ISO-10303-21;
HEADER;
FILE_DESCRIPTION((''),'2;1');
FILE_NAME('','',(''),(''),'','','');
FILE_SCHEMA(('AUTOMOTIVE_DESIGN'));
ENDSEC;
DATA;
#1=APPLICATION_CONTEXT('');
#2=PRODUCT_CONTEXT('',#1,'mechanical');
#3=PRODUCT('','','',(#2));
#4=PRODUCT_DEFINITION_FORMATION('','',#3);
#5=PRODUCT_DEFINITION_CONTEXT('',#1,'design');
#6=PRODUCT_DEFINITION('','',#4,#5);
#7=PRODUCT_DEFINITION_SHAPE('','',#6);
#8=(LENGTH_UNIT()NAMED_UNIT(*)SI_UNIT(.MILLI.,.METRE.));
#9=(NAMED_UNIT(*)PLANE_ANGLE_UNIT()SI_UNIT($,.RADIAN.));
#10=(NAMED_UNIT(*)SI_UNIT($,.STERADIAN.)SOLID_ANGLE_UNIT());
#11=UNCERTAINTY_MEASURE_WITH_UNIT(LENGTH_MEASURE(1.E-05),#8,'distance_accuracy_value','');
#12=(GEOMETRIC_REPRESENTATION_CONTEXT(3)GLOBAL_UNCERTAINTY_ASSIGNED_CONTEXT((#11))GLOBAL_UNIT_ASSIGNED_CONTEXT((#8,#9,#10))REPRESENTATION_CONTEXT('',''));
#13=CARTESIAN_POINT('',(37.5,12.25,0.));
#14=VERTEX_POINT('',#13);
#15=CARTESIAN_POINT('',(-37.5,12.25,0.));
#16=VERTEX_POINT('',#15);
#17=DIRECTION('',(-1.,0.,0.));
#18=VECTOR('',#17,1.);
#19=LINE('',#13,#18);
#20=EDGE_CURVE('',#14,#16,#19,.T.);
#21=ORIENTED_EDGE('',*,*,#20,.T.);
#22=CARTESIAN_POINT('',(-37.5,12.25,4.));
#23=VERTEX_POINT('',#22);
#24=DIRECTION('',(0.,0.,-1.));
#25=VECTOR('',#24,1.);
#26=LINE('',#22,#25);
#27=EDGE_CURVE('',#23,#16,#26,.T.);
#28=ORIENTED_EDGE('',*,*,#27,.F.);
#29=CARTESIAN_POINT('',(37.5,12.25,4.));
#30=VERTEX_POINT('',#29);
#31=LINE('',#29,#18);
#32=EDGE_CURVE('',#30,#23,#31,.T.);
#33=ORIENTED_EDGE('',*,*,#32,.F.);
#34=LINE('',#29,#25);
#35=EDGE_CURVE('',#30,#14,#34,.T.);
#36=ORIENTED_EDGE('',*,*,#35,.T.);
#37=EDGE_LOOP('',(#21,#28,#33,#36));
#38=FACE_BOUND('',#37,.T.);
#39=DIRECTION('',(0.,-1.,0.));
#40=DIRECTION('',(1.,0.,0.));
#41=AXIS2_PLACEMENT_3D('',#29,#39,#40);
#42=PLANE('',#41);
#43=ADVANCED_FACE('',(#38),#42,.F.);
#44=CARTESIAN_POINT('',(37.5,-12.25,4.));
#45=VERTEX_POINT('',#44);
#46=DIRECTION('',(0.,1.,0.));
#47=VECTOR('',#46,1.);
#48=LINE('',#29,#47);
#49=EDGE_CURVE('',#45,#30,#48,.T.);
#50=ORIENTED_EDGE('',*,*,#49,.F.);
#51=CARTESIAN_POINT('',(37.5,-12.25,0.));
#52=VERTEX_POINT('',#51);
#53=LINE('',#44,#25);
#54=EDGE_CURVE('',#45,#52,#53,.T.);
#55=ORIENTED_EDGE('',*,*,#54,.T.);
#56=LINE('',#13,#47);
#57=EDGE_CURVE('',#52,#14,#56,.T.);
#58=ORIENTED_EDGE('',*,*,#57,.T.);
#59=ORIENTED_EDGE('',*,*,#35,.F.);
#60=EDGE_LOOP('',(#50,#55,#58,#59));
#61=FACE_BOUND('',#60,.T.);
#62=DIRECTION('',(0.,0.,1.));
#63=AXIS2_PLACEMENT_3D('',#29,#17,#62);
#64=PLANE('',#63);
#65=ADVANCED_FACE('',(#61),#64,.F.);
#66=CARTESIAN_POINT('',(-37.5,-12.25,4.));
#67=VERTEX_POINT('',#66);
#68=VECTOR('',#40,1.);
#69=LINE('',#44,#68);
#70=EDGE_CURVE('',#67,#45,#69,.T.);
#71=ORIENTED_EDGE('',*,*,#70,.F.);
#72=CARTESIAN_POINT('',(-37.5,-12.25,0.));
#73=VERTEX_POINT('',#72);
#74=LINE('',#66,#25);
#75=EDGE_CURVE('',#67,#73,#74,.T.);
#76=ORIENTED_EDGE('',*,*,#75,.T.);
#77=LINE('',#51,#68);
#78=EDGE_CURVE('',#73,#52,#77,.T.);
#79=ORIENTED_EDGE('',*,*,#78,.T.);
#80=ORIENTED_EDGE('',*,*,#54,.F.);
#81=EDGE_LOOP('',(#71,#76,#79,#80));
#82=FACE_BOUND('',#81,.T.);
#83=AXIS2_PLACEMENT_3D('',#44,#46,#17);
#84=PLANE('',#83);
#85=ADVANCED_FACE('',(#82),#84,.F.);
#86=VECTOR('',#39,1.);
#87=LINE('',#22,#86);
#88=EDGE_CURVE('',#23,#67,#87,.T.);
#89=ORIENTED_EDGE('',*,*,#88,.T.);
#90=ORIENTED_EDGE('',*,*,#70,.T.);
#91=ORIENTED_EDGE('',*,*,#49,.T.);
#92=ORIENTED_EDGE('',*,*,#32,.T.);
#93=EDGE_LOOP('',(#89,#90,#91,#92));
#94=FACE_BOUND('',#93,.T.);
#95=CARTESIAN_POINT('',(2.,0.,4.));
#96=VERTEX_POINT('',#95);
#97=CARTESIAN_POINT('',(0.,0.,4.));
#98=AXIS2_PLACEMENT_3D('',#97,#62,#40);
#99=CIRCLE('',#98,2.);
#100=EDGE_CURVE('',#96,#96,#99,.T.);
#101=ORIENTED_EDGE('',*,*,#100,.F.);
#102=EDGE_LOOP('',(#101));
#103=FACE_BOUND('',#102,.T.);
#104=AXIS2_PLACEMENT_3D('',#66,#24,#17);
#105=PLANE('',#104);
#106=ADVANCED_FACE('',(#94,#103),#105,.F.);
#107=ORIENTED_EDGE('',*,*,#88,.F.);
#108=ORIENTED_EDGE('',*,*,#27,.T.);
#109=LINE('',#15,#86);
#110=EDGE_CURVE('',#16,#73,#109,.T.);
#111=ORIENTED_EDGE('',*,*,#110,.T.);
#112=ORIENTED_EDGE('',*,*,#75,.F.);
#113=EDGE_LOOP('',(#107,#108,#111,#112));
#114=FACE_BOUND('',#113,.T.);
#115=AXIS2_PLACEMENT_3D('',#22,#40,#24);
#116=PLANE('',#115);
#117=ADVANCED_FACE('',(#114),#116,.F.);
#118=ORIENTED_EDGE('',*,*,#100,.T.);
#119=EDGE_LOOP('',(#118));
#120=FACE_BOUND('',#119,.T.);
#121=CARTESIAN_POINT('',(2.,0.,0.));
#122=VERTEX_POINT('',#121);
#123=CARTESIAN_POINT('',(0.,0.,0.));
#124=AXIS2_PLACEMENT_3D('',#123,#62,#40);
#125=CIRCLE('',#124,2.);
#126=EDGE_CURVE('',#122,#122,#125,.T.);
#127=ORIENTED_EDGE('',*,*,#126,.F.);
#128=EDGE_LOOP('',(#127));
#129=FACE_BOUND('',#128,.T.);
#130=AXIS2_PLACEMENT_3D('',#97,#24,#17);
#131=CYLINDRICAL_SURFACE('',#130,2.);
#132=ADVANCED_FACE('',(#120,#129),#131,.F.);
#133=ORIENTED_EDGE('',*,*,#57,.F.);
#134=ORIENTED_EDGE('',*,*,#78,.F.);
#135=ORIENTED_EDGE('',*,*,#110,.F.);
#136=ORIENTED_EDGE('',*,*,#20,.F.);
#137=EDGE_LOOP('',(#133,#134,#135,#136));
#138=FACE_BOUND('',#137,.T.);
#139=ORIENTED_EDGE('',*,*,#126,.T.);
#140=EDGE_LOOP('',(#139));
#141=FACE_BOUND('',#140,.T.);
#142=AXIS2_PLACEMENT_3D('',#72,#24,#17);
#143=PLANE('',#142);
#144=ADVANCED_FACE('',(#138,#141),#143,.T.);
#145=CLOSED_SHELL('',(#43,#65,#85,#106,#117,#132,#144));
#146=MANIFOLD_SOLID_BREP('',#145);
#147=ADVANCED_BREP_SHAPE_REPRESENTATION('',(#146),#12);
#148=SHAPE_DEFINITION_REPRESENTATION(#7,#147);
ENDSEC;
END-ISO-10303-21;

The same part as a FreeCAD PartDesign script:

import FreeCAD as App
import Part
import Sketcher
Q = App.Units.Quantity

doc = App.newDocument("Part")
body = doc.addObject("PartDesign::Body", "Body")

# Sketch on XY plane
sketch1 = body.newObject("Sketcher::SketchObject", "Sketch")
sketch1.AttachmentSupport = (doc.getObject("XY_Plane"), [""])
sketch1.MapMode = "FlatFace"
sketch1.addGeometry(Part.LineSegment(App.Vector(-37.5, 12.2, 0), App.Vector(-37.5, -12.2, 0)), False)
sketch1.addGeometry(Part.LineSegment(App.Vector(-37.5, -12.2, 0), App.Vector(37.5, -12.2, 0)), False)
sketch1.addGeometry(Part.LineSegment(App.Vector(37.5, -12.2, 0), App.Vector(37.5, 12.2, 0)), False)
sketch1.addGeometry(Part.LineSegment(App.Vector(37.5, 12.2, 0), App.Vector(-37.5, 12.2, 0)), False)
sketch1.addGeometry(Part.Circle(App.Vector(0, 0, 0), App.Vector(0, 0, 1), 2), False)
sketch1.addConstraint(Sketcher.Constraint("Coincident", 0, 2, 1, 1))
sketch1.addConstraint(Sketcher.Constraint("Coincident", 1, 2, 2, 1))
sketch1.addConstraint(Sketcher.Constraint("Coincident", 2, 2, 3, 1))
sketch1.addConstraint(Sketcher.Constraint("Coincident", 3, 2, 0, 1))
sketch1.addConstraint(Sketcher.Constraint("Vertical", 0))
sketch1.addConstraint(Sketcher.Constraint("Horizontal", 1))
sketch1.addConstraint(Sketcher.Constraint("Vertical", 2))
sketch1.addConstraint(Sketcher.Constraint("Horizontal", 3))
sketch1.addConstraint(Sketcher.Constraint("Coincident", 4, 3, -1, 1))
sketch1.addConstraint(Sketcher.Constraint("Symmetric", 0, 2, 2, 2, -1, 1))
sketch1.addConstraint(Sketcher.Constraint("Diameter", 4, Q("4 mm")))
sketch1.addConstraint(Sketcher.Constraint("DistanceX", 1, 1, 1, 2, Q("75 mm")))
sketch1.addConstraint(Sketcher.Constraint("DistanceY", 0, 2, 0, 1, Q("24.5 mm")))
pad1 = body.newObject("PartDesign::Pad", "Pad")
pad1.Profile = sketch1
pad1.Length = 4

doc.recompute()
